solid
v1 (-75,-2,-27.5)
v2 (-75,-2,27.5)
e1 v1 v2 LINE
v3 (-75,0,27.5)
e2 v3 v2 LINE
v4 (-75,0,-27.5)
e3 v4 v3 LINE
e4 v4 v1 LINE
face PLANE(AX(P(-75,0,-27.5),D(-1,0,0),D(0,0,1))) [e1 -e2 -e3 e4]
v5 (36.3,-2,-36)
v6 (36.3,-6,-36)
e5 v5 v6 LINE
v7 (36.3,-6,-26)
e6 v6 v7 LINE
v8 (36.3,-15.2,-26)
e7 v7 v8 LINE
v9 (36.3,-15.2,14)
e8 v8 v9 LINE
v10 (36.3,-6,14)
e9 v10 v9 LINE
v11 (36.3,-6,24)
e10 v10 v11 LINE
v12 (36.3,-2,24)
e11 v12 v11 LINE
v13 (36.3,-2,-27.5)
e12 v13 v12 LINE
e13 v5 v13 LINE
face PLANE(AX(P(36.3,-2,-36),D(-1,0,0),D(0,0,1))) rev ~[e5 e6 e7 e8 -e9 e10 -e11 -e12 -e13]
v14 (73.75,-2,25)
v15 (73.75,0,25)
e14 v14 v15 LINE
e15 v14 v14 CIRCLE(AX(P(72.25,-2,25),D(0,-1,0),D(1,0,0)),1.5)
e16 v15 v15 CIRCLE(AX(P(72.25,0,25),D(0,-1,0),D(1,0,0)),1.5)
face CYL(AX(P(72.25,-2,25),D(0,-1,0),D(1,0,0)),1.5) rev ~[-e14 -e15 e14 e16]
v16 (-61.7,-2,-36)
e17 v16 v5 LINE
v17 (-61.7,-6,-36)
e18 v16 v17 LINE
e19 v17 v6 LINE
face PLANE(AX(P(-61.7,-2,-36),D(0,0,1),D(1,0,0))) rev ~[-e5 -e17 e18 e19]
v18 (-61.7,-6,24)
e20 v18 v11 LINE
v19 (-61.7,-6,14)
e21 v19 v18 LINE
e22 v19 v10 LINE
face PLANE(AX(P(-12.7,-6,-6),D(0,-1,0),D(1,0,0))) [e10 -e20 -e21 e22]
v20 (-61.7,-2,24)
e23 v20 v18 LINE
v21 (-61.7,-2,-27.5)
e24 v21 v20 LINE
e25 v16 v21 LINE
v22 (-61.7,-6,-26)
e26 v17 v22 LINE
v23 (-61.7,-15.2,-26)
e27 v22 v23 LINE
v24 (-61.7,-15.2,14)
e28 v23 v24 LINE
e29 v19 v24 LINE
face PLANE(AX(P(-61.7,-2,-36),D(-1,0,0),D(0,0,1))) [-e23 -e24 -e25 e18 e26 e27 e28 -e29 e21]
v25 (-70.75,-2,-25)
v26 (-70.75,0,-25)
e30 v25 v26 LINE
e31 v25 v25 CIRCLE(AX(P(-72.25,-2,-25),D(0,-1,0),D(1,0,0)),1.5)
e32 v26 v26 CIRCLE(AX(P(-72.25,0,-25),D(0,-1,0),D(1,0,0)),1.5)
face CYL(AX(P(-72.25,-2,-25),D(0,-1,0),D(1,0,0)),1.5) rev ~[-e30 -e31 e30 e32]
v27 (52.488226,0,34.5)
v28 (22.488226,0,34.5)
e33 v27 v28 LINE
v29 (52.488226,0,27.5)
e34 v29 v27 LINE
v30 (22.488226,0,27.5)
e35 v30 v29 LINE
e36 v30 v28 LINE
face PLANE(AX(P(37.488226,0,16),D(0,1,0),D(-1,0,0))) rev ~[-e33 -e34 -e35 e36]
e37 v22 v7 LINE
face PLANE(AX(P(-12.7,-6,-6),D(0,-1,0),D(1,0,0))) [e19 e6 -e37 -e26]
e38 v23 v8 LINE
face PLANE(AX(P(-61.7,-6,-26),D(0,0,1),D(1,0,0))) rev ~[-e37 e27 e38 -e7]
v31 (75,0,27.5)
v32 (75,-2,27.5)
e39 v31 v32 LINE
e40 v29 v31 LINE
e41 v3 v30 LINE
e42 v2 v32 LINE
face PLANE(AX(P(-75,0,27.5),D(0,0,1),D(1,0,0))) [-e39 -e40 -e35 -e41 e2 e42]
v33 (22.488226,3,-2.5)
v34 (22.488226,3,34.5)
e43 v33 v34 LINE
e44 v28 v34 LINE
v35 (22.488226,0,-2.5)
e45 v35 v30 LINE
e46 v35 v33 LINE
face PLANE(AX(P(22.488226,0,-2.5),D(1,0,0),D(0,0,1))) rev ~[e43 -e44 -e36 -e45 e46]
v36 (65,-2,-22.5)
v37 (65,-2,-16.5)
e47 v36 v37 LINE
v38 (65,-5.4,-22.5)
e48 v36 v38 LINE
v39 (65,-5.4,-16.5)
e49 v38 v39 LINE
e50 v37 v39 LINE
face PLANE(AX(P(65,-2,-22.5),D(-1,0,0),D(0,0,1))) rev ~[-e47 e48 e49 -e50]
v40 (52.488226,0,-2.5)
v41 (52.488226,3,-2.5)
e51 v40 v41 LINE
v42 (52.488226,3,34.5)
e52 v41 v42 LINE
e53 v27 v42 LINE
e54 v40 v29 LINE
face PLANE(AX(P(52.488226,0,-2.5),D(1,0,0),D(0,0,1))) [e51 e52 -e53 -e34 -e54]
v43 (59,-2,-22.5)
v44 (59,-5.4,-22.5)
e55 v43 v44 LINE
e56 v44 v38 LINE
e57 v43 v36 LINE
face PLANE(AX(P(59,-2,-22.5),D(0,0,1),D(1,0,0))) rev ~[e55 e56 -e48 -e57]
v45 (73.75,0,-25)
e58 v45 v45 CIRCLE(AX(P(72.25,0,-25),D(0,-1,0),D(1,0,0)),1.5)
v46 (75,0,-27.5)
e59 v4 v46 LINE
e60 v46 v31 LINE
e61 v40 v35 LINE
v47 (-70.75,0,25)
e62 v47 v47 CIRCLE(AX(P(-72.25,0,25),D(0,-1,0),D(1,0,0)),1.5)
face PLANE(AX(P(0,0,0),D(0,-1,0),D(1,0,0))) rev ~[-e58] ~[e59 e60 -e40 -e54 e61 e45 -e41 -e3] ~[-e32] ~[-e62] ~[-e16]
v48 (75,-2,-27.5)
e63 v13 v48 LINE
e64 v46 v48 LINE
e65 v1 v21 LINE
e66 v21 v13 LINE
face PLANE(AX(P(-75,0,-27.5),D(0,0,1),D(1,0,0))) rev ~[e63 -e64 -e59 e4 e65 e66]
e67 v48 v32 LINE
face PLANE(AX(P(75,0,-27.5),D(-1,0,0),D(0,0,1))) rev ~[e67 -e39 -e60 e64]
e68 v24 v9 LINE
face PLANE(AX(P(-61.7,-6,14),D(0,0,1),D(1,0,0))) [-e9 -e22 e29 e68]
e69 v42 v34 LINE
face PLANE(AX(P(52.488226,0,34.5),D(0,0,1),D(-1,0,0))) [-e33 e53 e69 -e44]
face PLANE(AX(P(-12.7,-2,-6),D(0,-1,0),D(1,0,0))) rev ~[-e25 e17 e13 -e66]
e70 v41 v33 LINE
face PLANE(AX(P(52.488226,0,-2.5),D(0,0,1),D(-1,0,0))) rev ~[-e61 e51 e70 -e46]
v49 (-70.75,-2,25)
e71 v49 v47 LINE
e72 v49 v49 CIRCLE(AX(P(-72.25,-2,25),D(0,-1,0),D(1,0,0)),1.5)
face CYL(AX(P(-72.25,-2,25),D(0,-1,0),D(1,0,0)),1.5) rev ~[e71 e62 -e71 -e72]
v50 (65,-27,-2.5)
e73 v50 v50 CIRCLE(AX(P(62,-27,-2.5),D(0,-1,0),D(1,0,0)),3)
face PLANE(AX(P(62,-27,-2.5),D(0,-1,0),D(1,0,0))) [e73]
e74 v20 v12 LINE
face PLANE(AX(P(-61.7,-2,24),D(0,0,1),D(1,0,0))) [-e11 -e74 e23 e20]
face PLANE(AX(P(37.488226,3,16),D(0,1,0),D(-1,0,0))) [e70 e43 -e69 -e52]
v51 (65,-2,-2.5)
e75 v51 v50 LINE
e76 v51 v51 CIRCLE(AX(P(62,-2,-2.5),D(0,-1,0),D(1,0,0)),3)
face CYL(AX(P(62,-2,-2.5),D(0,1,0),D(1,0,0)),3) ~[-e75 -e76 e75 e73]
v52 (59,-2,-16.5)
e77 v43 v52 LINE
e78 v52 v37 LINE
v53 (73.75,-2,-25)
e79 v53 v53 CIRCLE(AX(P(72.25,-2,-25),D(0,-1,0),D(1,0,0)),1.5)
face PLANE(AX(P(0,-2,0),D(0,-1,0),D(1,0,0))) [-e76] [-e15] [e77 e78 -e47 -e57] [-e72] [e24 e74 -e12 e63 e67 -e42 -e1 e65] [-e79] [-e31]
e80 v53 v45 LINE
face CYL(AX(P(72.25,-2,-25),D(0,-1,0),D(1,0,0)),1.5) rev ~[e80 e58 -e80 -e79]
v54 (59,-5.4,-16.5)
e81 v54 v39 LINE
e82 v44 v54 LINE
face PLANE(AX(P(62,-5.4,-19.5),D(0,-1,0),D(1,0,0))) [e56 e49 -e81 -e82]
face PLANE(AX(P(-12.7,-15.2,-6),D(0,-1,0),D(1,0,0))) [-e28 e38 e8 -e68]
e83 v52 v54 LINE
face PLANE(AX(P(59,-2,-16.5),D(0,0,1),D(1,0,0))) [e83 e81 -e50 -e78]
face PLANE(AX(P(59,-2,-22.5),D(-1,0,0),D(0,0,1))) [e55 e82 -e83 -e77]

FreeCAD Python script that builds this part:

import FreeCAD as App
import Part
import Sketcher
Q = App.Units.Quantity


def add_polygon(sketch, points):
    """Adds a closed chain of lines whose ends are joined by coincident constraints."""
    first, n = sketch.GeometryCount, len(points)
    for a, b in zip(points, points[1:] + points[:1]):
        sketch.addGeometry(Part.LineSegment(App.Vector(*a, 0), App.Vector(*b, 0)), False)
    for i in range(n):
        sketch.addConstraint(Sketcher.Constraint("Coincident", first + i, 2, first + (i + 1) % n, 1))

doc = App.newDocument("Part")
body = doc.addObject("PartDesign::Body", "Body")

# Sketch on XZ plane
sketch1 = body.newObject("Sketcher::SketchObject", "Sketch")
sketch1.AttachmentSupport = (doc.getObject("XZ_Plane"), [""])
sketch1.MapMode = "FlatFace"
add_polygon(sketch1, [(-75, 28), (-75, -28), (75, -28), (75, 28)])  # lines 0-3
sketch1.addConstraint([
    Sketcher.Constraint("Vertical", 0),
    Sketcher.Constraint("Horizontal", 1),
    Sketcher.Constraint("Vertical", 2),
    Sketcher.Constraint("Horizontal", 3),
    Sketcher.Constraint("Symmetric", 0, 2, 2, 2, -1, 1),
    Sketcher.Constraint("DistanceX", 1, 1, 1, 2, Q("150 mm")),
    Sketcher.Constraint("DistanceY", 0, 2, 0, 1, Q("55 mm")),
])
pad1 = body.newObject("PartDesign::Pad", "Pad")
pad1.Profile = sketch1
pad1.Length = 2

# Sketch on XZ plane
sketch2 = body.newObject("Sketcher::SketchObject", "Sketch001")
sketch2.AttachmentSupport = (doc.getObject("XZ_Plane"), [""])
sketch2.MapMode = "FlatFace"
sketch2.AttachmentOffset = App.Placement(App.Vector(0, 0, 2), App.Rotation())
sketch2.addGeometry([
    Part.Circle(App.Vector(-72.2, 25, 0), App.Vector(0, 0, 1), 1.5),
    Part.Circle(App.Vector(-72.2, -25, 0), App.Vector(0, 0, 1), 1.5),
    Part.Circle(App.Vector(72.2, 25, 0), App.Vector(0, 0, 1), 1.5),
    Part.Circle(App.Vector(72.2, -25, 0), App.Vector(0, 0, 1), 1.5),
], False)
sketch2.addConstraint([
    Sketcher.Constraint("Equal", 0, 1),
    Sketcher.Constraint("Equal", 1, 2),
    Sketcher.Constraint("Equal", 2, 3),
    Sketcher.Constraint("Symmetric", 1, 3, 2, 3, -1, 1),
    Sketcher.Constraint("Symmetric", 0, 3, 3, 3, -1, 1),
    Sketcher.Constraint("Symmetric", 0, 3, 2, 3, -2),
    Sketcher.Constraint("Diameter", 0, Q("3 mm")),
    Sketcher.Constraint("DistanceY", -1, 1, 0, 3, Q("25 mm")),
    Sketcher.Constraint("DistanceX", 0, 3, 2, 3, Q("144.5 mm")),
])
pocket1 = body.newObject("PartDesign::Pocket", "Pocket")
pocket1.Profile = sketch2
pocket1.Type = "ThroughAll"

# Sketch on XZ plane
sketch3 = body.newObject("Sketcher::SketchObject", "Sketch002")
sketch3.AttachmentSupport = (doc.getObject("XZ_Plane"), [""])
sketch3.MapMode = "FlatFace"
sketch3.AttachmentOffset = App.Placement(App.Vector(0, 0, 2), App.Rotation())
sketch3.addGeometry(Part.Circle(App.Vector(62, -2.5, 0), App.Vector(0, 0, 1), 3), False)
sketch3.addConstraint([
    Sketcher.Constraint("Diameter", 0, Q("6 mm")),
    Sketcher.Constraint("DistanceX", -1, 1, 0, 3, Q("62 mm")),
    Sketcher.Constraint("DistanceY", 0, 3, -1, 1, Q("2.5 mm")),
])
pad2 = body.newObject("PartDesign::Pad", "Pad001")
pad2.Profile = sketch3
pad2.Length = 25

# Sketch on XZ plane
sketch4 = body.newObject("Sketcher::SketchObject", "Sketch003")
sketch4.AttachmentSupport = (doc.getObject("XZ_Plane"), [""])
sketch4.MapMode = "FlatFace"
sketch4.AttachmentOffset = App.Placement(App.Vector(0, 0, 2), App.Rotation())
add_polygon(sketch4, [(59, -16), (59, -22), (65, -22), (65, -16)])  # lines 0-3
sketch4.addConstraint([
    Sketcher.Constraint("Vertical", 0),
    Sketcher.Constraint("Horizontal", 1),
    Sketcher.Constraint("Vertical", 2),
    Sketcher.Constraint("Horizontal", 3),
    Sketcher.Constraint("Equal", 3, 0),
    Sketcher.Constraint("DistanceX", 1, 1, 1, 2, Q("6 mm")),
    Sketcher.Constraint("DistanceX", -1, 1, 0, 2, Q("59 mm")),
    Sketcher.Constraint("DistanceY", 0, 2, -1, 1, Q("22.5 mm")),
])
pad3 = body.newObject("PartDesign::Pad", "Pad002")
pad3.Profile = sketch4
pad3.Length = 3.4

# Sketch on XZ plane
sketch5 = body.newObject("Sketcher::SketchObject", "Sketch004")
sketch5.AttachmentSupport = (doc.getObject("XZ_Plane"), [""])
sketch5.MapMode = "FlatFace"
sketch5.AttachmentOffset = App.Placement(App.Vector(0, 0, 2), App.Rotation())
add_polygon(sketch5, [(-62, 24), (-62, -36), (36, -36), (36, 24)])  # lines 0-3
sketch5.addConstraint([
    Sketcher.Constraint("Vertical", 0),
    Sketcher.Constraint("Horizontal", 1),
    Sketcher.Constraint("Vertical", 2),
    Sketcher.Constraint("Horizontal", 3),
    Sketcher.Constraint("DistanceX", 1, 1, 1, 2, Q("98 mm")),
    Sketcher.Constraint("DistanceY", 0, 2, 0, 1, Q("60 mm")),
    Sketcher.Constraint("DistanceY", 0, 2, -1, 1, Q("36 mm")),
    Sketcher.Constraint("DistanceX", 0, 2, -1, 1, Q("61.7 mm")),
])
pad4 = body.newObject("PartDesign::Pad", "Pad003")
pad4.Profile = sketch5
pad4.Length = 4

# Sketch on XZ plane
sketch6 = body.newObject("Sketcher::SketchObject", "Sketch005")
sketch6.AttachmentSupport = (doc.getObject("XZ_Plane"), [""])
sketch6.MapMode = "FlatFace"
sketch6.AttachmentOffset = App.Placement(App.Vector(0, 0, 6), App.Rotation())
add_polygon(sketch6, [(-62, 14), (-62, -26), (36, -26), (36, 14)])  # lines 0-3
sketch6.addConstraint([
    Sketcher.Constraint("Vertical", 0),
    Sketcher.Constraint("Horizontal", 1),
    Sketcher.Constraint("Vertical", 2),
    Sketcher.Constraint("Horizontal", 3),
    Sketcher.Constraint("DistanceX", 1, 1, 1, 2, Q("98 mm")),
    Sketcher.Constraint("DistanceY", 0, 2, 0, 1, Q("40 mm")),
    Sketcher.Constraint("DistanceY", 0, 2, -1, 1, Q("26 mm")),
    Sketcher.Constraint("DistanceX", 0, 2, -1, 1, Q("61.7 mm")),
])
pad5 = body.newObject("PartDesign::Pad", "Pad004")
pad5.Profile = sketch6
pad5.Length = 9.2

# Sketch on XZ plane
sketch7 = body.newObject("Sketcher::SketchObject", "Sketch006")
sketch7.AttachmentSupport = (doc.getObject("XZ_Plane"), [""])
sketch7.MapMode = "FlatFace"
add_polygon(sketch7, [(52, 34), (52, -2), (22, -2), (22, 34)])  # lines 0-3
sketch7.addConstraint([
    Sketcher.Constraint("Vertical", 0),
    Sketcher.Constraint("Horizontal", 1),
    Sketcher.Constraint("Vertical", 2),
    Sketcher.Constraint("Horizontal", 3),
    Sketcher.Constraint("DistanceX", 1, 2, 1, 1, Q("30 mm")),
    Sketcher.Constraint("DistanceY", 0, 2, 0, 1, Q("37 mm")),
    Sketcher.Constraint("DistanceY", 0, 2, -1, 1, Q("2.5 mm")),
    Sketcher.Constraint("DistanceX", -1, 1, 0, 2, Q("52.488226 mm")),
])
pad6 = body.newObject("PartDesign::Pad", "Pad005")
pad6.Profile = sketch7
pad6.Length = 3
pad6.Reversed = True

doc.recompute()
